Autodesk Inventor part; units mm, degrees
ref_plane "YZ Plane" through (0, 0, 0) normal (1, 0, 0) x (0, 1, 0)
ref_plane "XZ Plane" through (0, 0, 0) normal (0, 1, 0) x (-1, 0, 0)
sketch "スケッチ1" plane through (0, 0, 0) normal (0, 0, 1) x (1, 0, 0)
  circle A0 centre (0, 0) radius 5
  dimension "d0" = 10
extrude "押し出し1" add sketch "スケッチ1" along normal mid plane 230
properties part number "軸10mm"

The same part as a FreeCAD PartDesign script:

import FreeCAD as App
import Part
import Sketcher

doc = App.newDocument("Part")
body = doc.addObject("PartDesign::Body", "Body")

# Sketch on XY plane
sketch1 = body.newObject("Sketcher::SketchObject", "Sketch")
sketch1.AttachmentSupport = (doc.getObject("XY_Plane"), [""])
sketch1.MapMode = "FlatFace"
sketch1.addGeometry(Part.Circle(App.Vector(0, 0, 0), App.Vector(0, 0, 1), 5), False)
sketch1.addConstraint([
    Sketcher.Constraint("Coincident", 0, 3, -1, 1),
    Sketcher.Constraint("Diameter", 0, 10.0),
])
pad1 = body.newObject("PartDesign::Pad", "Pad")
pad1.Profile = sketch1
pad1.Length = 230
pad1.Midplane = True

doc.recompute()
